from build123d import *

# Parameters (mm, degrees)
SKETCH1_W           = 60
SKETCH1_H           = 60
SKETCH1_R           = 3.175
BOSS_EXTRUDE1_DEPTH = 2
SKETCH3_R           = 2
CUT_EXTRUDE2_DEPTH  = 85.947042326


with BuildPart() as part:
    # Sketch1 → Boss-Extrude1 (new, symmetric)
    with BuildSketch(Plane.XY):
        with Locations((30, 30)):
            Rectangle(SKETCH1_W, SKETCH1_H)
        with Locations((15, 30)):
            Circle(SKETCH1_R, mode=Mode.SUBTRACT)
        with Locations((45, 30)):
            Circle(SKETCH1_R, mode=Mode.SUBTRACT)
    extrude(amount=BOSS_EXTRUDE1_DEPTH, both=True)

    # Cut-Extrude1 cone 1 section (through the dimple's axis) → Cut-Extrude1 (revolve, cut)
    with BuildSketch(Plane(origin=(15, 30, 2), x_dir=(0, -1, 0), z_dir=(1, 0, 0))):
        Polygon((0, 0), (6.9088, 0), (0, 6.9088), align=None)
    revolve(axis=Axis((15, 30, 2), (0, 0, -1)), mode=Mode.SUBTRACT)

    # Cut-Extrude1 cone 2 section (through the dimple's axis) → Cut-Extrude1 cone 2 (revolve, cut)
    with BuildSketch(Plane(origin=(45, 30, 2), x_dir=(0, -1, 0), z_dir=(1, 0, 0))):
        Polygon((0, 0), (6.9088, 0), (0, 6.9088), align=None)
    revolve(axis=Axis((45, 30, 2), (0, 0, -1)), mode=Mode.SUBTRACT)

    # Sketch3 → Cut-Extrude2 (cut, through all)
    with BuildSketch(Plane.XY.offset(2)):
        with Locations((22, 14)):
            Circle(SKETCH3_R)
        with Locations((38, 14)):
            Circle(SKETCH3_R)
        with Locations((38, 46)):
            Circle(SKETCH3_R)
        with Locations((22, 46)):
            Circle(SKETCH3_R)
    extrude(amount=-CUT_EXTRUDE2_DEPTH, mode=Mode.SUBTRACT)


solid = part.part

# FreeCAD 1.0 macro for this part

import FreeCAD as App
import Part
import Sketcher

V = App.Vector
Q = App.Units.Quantity

doc = App.newDocument("Part")
body = doc.addObject("PartDesign::Body", "Body")

# Sketch on XY plane
sketch1 = body.newObject("Sketcher::SketchObject", "Sketch")
sketch1.AttachmentSupport = (doc.getObject("XY_Plane"), [""])
sketch1.MapMode = "FlatFace"
sketch1.addGeometry([
    Part.LineSegment(V(0, 60, 0), V(0, 0, 0)),  # 0
    Part.LineSegment(V(0, 0, 0), V(60, 0, 0)),  # 1
    Part.LineSegment(V(60, 0, 0), V(60, 60, 0)),  # 2
    Part.LineSegment(V(60, 60, 0), V(0, 60, 0)),  # 3
    Part.Circle(V(15, 30, 0), V(0, 0, 1), 3.2),  # 4
    Part.Circle(V(45, 30, 0), V(0, 0, 1), 3.2),  # 5
], False)
sketch1.addConstraint([
    Sketcher.Constraint("Coincident", 0, 2, 1, 1),
    Sketcher.Constraint("Coincident", 1, 2, 2, 1),
    Sketcher.Constraint("Coincident", 2, 2, 3, 1),
    Sketcher.Constraint("Coincident", 3, 2, 0, 1),
    Sketcher.Constraint("Vertical", 0),
    Sketcher.Constraint("Horizontal", 1),
    Sketcher.Constraint("Vertical", 2),
    Sketcher.Constraint("Horizontal", 3),
    Sketcher.Constraint("Coincident", 0, 2, -1, 1),
    Sketcher.Constraint("Equal", 4, 5),
    Sketcher.Constraint("Horizontal", 4, 3, 5, 3),
    Sketcher.Constraint("Equal", 3, 0),
    Sketcher.Constraint("Diameter", 4, Q("6.35 mm")),
    Sketcher.Constraint("DistanceX", 1, 1, 1, 2, Q("60 mm")),
    Sketcher.Constraint("DistanceX", -1, 1, 4, 3, Q("15 mm")),
    Sketcher.Constraint("DistanceY", -1, 1, 4, 3, Q("30 mm")),
    Sketcher.Constraint("DistanceX", -1, 1, 5, 3, Q("45 mm")),
])
pad1 = body.newObject("PartDesign::Pad", "Pad")
pad1.Profile = sketch1
pad1.Length = 4
pad1.Midplane = True

# Sketch on YZ plane
sketch2 = body.newObject("Sketcher::SketchObject", "Sketch001")
sketch2.AttachmentSupport = (doc.getObject("YZ_Plane"), [""])
sketch2.MapMode = "FlatFace"
sketch2.AttachmentOffset = App.Placement(V(0, 0, 15), App.Rotation())
sketch2.addGeometry([
    Part.LineSegment(V(30, 2, 0), V(23, 2, 0)),
    Part.LineSegment(V(23, 2, 0), V(30, -5, 0)),
    Part.LineSegment(V(30, -5, 0), V(30, 2, 0)),
], False)
sketch2.addGeometry(Part.LineSegment(V(30, 2, 0), V(30, -5, 0)), True)  # axis
sketch2.addConstraint([
    Sketcher.Constraint("Coincident", 0, 2, 1, 1),
    Sketcher.Constraint("Coincident", 1, 2, 2, 1),
    Sketcher.Constraint("Coincident", 2, 2, 0, 1),
    Sketcher.Constraint("Horizontal", 0),
    Sketcher.Constraint("Vertical", 2),
    Sketcher.Constraint("Vertical", 3),
    Sketcher.Constraint("Coincident", 3, 1, 2, 2),
    Sketcher.Constraint("Equal", 0, 2),
    Sketcher.Constraint("Equal", 2, 3),
    Sketcher.Constraint("DistanceY", -1, 1, 0, 2, Q("2 mm")),
    Sketcher.Constraint("DistanceX", -1, 1, 1, 2, Q("30 mm")),
    Sketcher.Constraint("DistanceX", 0, 2, 0, 1, Q("6.9088 mm")),
])
groove = body.newObject("PartDesign::Groove", "Groove")
groove.Profile = sketch2
groove.ReferenceAxis = (sketch2, ["Axis0"])
groove.Angle = 360

# Sketch on YZ plane
sketch3 = body.newObject("Sketcher::SketchObject", "Sketch002")
sketch3.AttachmentSupport = (doc.getObject("YZ_Plane"), [""])
sketch3.MapMode = "FlatFace"
sketch3.AttachmentOffset = App.Placement(V(0, 0, 45), App.Rotation())
sketch3.addGeometry([
    Part.LineSegment(V(30, 2, 0), V(23, 2, 0)),
    Part.LineSegment(V(23, 2, 0), V(30, -5, 0)),
    Part.LineSegment(V(30, -5, 0), V(30, 2, 0)),
], False)
sketch3.addGeometry(Part.LineSegment(V(30, 2, 0), V(30, -5, 0)), True)  # axis
sketch3.addConstraint([
    Sketcher.Constraint("Coincident", 0, 2, 1, 1),
    Sketcher.Constraint("Coincident", 1, 2, 2, 1),
    Sketcher.Constraint("Coincident", 2, 2, 0, 1),
    Sketcher.Constraint("Horizontal", 0),
    Sketcher.Constraint("Vertical", 2),
    Sketcher.Constraint("Vertical", 3),
    Sketcher.Constraint("Coincident", 3, 1, 2, 2),
    Sketcher.Constraint("Equal", 0, 2),
    Sketcher.Constraint("Equal", 2, 3),
    Sketcher.Constraint("DistanceY", -1, 1, 0, 2, Q("2 mm")),
    Sketcher.Constraint("DistanceX", -1, 1, 1, 2, Q("30 mm")),
    Sketcher.Constraint("DistanceX", 0, 2, 0, 1, Q("6.9088 mm")),
])
groove2 = body.newObject("PartDesign::Groove", "Groove001")
groove2.Profile = sketch3
groove2.ReferenceAxis = (sketch3, ["Axis0"])
groove2.Angle = 360

# Sketch on XY plane
sketch4 = body.newObject("Sketcher::SketchObject", "Sketch003")
sketch4.AttachmentSupport = (doc.getObject("XY_Plane"), [""])
sketch4.MapMode = "FlatFace"
sketch4.AttachmentOffset = App.Placement(V(0, 0, 2), App.Rotation())
sketch4.addGeometry([
    Part.Circle(V(22, 14, 0), V(0, 0, 1), 2),
    Part.Circle(V(38, 14, 0), V(0, 0, 1), 2),
    Part.Circle(V(38, 46, 0), V(0, 0, 1), 2),
    Part.Circle(V(22, 46, 0), V(0, 0, 1), 2),
], False)
sketch4.addConstraint([
    Sketcher.Constraint("Equal", 0, 1),
    Sketcher.Constraint("Equal", 1, 2),
    Sketcher.Constraint("Equal", 2, 3),
    Sketcher.Constraint("Horizontal", 0, 3, 1, 3),
    Sketcher.Constraint("Horizontal", 2, 3, 3, 3),
    Sketcher.Constraint("Vertical", 1, 3, 2, 3),
    Sketcher.Constraint("Vertical", 0, 3, 3, 3),
    Sketcher.Constraint("Diameter", 0, Q("4 mm")),
    Sketcher.Constraint("DistanceX", -1, 1, 0, 3, Q("22 mm")),
    Sketcher.Constraint("DistanceY", -1, 1, 0, 3, Q("14 mm")),
    Sketcher.Constraint("DistanceX", -1, 1, 1, 3, Q("38 mm")),
    Sketcher.Constraint("DistanceY", -1, 1, 2, 3, Q("46 mm")),
])
pocket1 = body.newObject("PartDesign::Pocket", "Pocket")
pocket1.Profile = sketch4
pocket1.Type = "ThroughAll"

doc.recompute()
